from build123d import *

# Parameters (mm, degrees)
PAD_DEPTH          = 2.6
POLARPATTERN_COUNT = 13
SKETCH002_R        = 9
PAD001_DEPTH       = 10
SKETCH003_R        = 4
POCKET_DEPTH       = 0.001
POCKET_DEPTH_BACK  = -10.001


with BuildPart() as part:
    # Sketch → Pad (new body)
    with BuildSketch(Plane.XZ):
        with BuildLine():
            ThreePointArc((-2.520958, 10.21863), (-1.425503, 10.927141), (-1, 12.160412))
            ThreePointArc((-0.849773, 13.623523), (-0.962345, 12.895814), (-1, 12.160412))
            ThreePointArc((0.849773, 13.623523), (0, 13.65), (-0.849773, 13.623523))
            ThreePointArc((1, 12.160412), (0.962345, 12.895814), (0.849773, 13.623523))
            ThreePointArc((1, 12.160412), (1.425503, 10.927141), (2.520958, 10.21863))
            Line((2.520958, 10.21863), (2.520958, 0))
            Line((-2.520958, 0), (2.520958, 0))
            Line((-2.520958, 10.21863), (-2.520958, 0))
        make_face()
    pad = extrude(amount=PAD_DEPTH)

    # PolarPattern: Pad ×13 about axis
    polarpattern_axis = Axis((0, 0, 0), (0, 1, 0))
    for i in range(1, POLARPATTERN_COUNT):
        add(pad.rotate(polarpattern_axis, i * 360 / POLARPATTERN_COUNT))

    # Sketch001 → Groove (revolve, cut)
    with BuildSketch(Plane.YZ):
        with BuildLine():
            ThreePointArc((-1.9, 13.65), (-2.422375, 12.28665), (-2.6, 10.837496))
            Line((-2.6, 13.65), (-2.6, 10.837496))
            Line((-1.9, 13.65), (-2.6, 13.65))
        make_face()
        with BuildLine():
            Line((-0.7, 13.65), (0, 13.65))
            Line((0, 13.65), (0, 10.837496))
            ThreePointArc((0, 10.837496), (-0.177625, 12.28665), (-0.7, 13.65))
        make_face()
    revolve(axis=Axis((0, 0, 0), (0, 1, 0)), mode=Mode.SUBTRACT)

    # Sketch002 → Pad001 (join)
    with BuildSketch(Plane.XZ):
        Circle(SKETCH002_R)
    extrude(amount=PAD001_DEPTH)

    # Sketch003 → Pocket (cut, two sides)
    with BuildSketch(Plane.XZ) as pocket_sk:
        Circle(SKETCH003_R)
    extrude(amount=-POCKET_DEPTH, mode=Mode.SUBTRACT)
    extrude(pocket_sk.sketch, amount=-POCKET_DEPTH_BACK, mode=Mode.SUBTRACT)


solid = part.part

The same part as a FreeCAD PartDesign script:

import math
import FreeCAD as App
import Part
import Sketcher
from FreeCAD import Vector

doc = App.newDocument("Part")
body = doc.addObject("PartDesign::Body", "Body")

# Sketch on XZ plane
sketch1 = body.newObject("Sketcher::SketchObject", "Sketch")
sketch1.AttachmentSupport = (doc.getObject("XZ_Plane"), [""])
sketch1.MapMode = "FlatFace"
sketch1.addGeometry(Part.ArcOfCircle(Part.Circle(Vector(-3, 12.2, 0), Vector(0, 0, 1), 2), math.radians(-76), math.radians(0)), False)
sketch1.addGeometry(Part.LineSegment(Vector(-2.5, 10.2, 0), Vector(-2.5, 0, 0)), False)
sketch1.addGeometry(Part.LineSegment(Vector(-2.5, 0, 0), Vector(2.5, 0, 0)), False)
sketch1.addGeometry(Part.LineSegment(Vector(2.5, 0, 0), Vector(2.5, 10.2, 0)), False)
sketch1.addGeometry(Part.ArcOfCircle(Part.Circle(Vector(3, 12.2, 0), Vector(0, 0, 1), 2), math.radians(-180), math.radians(-104)), False)
sketch1.addGeometry(Part.ArcOfCircle(Part.Circle(Vector(-6.2, 12.2, 0), Vector(0, 0, 1), 7.2), math.radians(0), math.radians(11.72)), False)
sketch1.addGeometry(Part.ArcOfCircle(Part.Circle(Vector(0, 0, 0), Vector(0, 0, 1), 13.6), math.radians(86.43), math.radians(93.57)), False)
sketch1.addGeometry(Part.ArcOfCircle(Part.Circle(Vector(6.2, 12.2, 0), Vector(0, 0, 1), 7.2), math.radians(168.28), math.radians(180)), False)
sketch1.addConstraint(Sketcher.Constraint("Coincident", 0, 1, 1, 1))
sketch1.addConstraint(Sketcher.Constraint("Coincident", 1, 2, 2, 1))
sketch1.addConstraint(Sketcher.Constraint("Coincident", 2, 2, 3, 1))
sketch1.addConstraint(Sketcher.Constraint("Coincident", 3, 2, 4, 2))
sketch1.addConstraint(Sketcher.Constraint("Tangent", 4, 1, 5, 1))
sketch1.addConstraint(Sketcher.Constraint("Coincident", 5, 2, 6, 1))
sketch1.addConstraint(Sketcher.Constraint("Coincident", 6, 2, 7, 1))
sketch1.addConstraint(Sketcher.Constraint("Tangent", 7, 2, 0, 2))
sketch1.addConstraint(Sketcher.Constraint("Vertical", 1))
sketch1.addConstraint(Sketcher.Constraint("Horizontal", 2))
sketch1.addConstraint(Sketcher.Constraint("Vertical", 3))
sketch1.addConstraint(Sketcher.Constraint("Equal", 0, 4))
sketch1.addConstraint(Sketcher.Constraint("Equal", 5, 7))
sketch1.addConstraint(Sketcher.Constraint("Symmetric", 1, 2, 2, 2, -1, 1))
sketch1.addConstraint(Sketcher.Constraint("Symmetric", 0, 3, 4, 3, -2))
sketch1.addConstraint(Sketcher.Constraint("Symmetric", 5, 2, 6, 2, -2))
sketch1.addConstraint(Sketcher.Constraint("Horizontal", 0, 3, 4, 1))
sketch1.addConstraint(Sketcher.Constraint("Radius", 0, 2.000001))
sketch1.addConstraint(Sketcher.Constraint("DistanceX", 0, 3, -1, 1, 3.000001))
sketch1.addConstraint(Sketcher.Constraint("Radius", 5, 7.199928))
sketch1.addConstraint(Sketcher.Constraint("Radius", 6, 13.649869))
sketch1.addConstraint(Sketcher.Constraint("DistanceY", 1, 2, 1, 1, 10.21863))
sketch1.addConstraint(Sketcher.Constraint("DistanceY", 6, 3, 0, 1, 10.218499))
sketch1.addConstraint(Sketcher.Constraint("DistanceX", 2, 1, 2, 2, 5.041916))
pad1 = body.newObject("PartDesign::Pad", "Pad")
pad1.Profile = sketch1
pad1.Length = 2.6
doc.recompute()

polarpattern = body.newObject("PartDesign::PolarPattern", "PolarPattern")
polarpattern.Originals = [pad1]
polarpattern.Axis = (doc.getObject("Y_Axis"), [""])
polarpattern.Angle = 360
polarpattern.Occurrences = 13
body.Tip = polarpattern

# Sketch on YZ plane
sketch2 = body.newObject("Sketcher::SketchObject", "Sketch001")
sketch2.AttachmentSupport = (doc.getObject("YZ_Plane"), [""])
sketch2.MapMode = "FlatFace"
sketch2.addGeometry(Part.ArcOfCircle(Part.Circle(Vector(3.4, 10.8, 0), Vector(0, 0, 1), 6), math.radians(152), math.radians(180)), False)
sketch2.addGeometry(Part.LineSegment(Vector(-1.9, 13.7, 0), Vector(-2.6, 13.7, 0)), False)
sketch2.addGeometry(Part.LineSegment(Vector(-2.6, 13.7, 0), Vector(-2.6, 10.8, 0)), False)
sketch2.addGeometry(Part.LineSegment(Vector(0, 13.7, 0), Vector(-0.7, 13.7, 0)), False)
sketch2.addGeometry(Part.ArcOfCircle(Part.Circle(Vector(-6, 10.8, 0), Vector(0, 0, 1), 6), math.radians(0), math.radians(28)), False)
sketch2.addGeometry(Part.LineSegment(Vector(0, 10.8, 0), Vector(0, 13.7, 0)), False)
sketch2.addConstraint(Sketcher.Constraint("Coincident", 0, 1, 1, 1))
sketch2.addConstraint(Sketcher.Constraint("Coincident", 1, 2, 2, 1))
sketch2.addConstraint(Sketcher.Constraint("Coincident", 2, 2, 0, 2))
sketch2.addConstraint(Sketcher.Constraint("Coincident", 3, 2, 4, 2))
sketch2.addConstraint(Sketcher.Constraint("Coincident", 4, 1, 5, 1))
sketch2.addConstraint(Sketcher.Constraint("Coincident", 5, 2, 3, 1))
sketch2.addConstraint(Sketcher.Constraint("Horizontal", 1))
sketch2.addConstraint(Sketcher.Constraint("Vertical", 2))
sketch2.addConstraint(Sketcher.Constraint("Horizontal", 3))
sketch2.addConstraint(Sketcher.Constraint("Vertical", 5))
sketch2.addConstraint(Sketcher.Constraint("Equal", 0, 4))
sketch2.addConstraint(Sketcher.Constraint("PointOnObject", 4, 1, -2))
sketch2.addConstraint(Sketcher.Constraint("Horizontal", 0, 3, 4, 3))
sketch2.addConstraint(Sketcher.Constraint("Horizontal", 1, 2, 3, 2))
sketch2.addConstraint(Sketcher.Constraint("Horizontal", 2, 2, 4, 1))
sketch2.addConstraint(Sketcher.Constraint("DistanceX", 1, 2, 1, 1, 0.7))
sketch2.addConstraint(Sketcher.Constraint("DistanceX", 0, 1, -1, 1, 1.9))
sketch2.addConstraint(Sketcher.Constraint("DistanceY", -1, 1, 0, 1, 13.65))
sketch2.addConstraint(Sketcher.Constraint("Radius", 0, 5.999984))
sketch2.addConstraint(Sketcher.Constraint("DistanceY", 2, 2, 2, 1, 2.812504))
groove = body.newObject("PartDesign::Groove", "Groove")
groove.Profile = sketch2
groove.ReferenceAxis = (sketch2, ["H_Axis"])
groove.Angle = 360

# Sketch on XZ plane
sketch3 = body.newObject("Sketcher::SketchObject", "Sketch002")
sketch3.AttachmentSupport = (doc.getObject("XZ_Plane"), [""])
sketch3.MapMode = "FlatFace"
sketch3.addGeometry(Part.Circle(Vector(0, 0, 0), Vector(0, 0, 1), 9), False)
sketch3.addConstraint(Sketcher.Constraint("Coincident", 0, 3, -1, 1))
sketch3.addConstraint(Sketcher.Constraint("Diameter", 0, 18.0))
pad2 = body.newObject("PartDesign::Pad", "Pad001")
pad2.Profile = sketch3
pad2.Length = 10

# Sketch on XZ plane
sketch4 = body.newObject("Sketcher::SketchObject", "Sketch003")
sketch4.AttachmentSupport = (doc.getObject("XZ_Plane"), [""])
sketch4.MapMode = "FlatFace"
sketch4.addGeometry(Part.Circle(Vector(0, 0, 0), Vector(0, 0, 1), 4), False)
sketch4.addConstraint(Sketcher.Constraint("Coincident", 0, 3, -1, 1))
sketch4.addConstraint(Sketcher.Constraint("Diameter", 0, 8.0))
pocket1 = body.newObject("PartDesign::Pocket", "Pocket")
pocket1.Profile = sketch4
pocket1.Type = "ThroughAll"
pocket1.Midplane = True

doc.recompute()
